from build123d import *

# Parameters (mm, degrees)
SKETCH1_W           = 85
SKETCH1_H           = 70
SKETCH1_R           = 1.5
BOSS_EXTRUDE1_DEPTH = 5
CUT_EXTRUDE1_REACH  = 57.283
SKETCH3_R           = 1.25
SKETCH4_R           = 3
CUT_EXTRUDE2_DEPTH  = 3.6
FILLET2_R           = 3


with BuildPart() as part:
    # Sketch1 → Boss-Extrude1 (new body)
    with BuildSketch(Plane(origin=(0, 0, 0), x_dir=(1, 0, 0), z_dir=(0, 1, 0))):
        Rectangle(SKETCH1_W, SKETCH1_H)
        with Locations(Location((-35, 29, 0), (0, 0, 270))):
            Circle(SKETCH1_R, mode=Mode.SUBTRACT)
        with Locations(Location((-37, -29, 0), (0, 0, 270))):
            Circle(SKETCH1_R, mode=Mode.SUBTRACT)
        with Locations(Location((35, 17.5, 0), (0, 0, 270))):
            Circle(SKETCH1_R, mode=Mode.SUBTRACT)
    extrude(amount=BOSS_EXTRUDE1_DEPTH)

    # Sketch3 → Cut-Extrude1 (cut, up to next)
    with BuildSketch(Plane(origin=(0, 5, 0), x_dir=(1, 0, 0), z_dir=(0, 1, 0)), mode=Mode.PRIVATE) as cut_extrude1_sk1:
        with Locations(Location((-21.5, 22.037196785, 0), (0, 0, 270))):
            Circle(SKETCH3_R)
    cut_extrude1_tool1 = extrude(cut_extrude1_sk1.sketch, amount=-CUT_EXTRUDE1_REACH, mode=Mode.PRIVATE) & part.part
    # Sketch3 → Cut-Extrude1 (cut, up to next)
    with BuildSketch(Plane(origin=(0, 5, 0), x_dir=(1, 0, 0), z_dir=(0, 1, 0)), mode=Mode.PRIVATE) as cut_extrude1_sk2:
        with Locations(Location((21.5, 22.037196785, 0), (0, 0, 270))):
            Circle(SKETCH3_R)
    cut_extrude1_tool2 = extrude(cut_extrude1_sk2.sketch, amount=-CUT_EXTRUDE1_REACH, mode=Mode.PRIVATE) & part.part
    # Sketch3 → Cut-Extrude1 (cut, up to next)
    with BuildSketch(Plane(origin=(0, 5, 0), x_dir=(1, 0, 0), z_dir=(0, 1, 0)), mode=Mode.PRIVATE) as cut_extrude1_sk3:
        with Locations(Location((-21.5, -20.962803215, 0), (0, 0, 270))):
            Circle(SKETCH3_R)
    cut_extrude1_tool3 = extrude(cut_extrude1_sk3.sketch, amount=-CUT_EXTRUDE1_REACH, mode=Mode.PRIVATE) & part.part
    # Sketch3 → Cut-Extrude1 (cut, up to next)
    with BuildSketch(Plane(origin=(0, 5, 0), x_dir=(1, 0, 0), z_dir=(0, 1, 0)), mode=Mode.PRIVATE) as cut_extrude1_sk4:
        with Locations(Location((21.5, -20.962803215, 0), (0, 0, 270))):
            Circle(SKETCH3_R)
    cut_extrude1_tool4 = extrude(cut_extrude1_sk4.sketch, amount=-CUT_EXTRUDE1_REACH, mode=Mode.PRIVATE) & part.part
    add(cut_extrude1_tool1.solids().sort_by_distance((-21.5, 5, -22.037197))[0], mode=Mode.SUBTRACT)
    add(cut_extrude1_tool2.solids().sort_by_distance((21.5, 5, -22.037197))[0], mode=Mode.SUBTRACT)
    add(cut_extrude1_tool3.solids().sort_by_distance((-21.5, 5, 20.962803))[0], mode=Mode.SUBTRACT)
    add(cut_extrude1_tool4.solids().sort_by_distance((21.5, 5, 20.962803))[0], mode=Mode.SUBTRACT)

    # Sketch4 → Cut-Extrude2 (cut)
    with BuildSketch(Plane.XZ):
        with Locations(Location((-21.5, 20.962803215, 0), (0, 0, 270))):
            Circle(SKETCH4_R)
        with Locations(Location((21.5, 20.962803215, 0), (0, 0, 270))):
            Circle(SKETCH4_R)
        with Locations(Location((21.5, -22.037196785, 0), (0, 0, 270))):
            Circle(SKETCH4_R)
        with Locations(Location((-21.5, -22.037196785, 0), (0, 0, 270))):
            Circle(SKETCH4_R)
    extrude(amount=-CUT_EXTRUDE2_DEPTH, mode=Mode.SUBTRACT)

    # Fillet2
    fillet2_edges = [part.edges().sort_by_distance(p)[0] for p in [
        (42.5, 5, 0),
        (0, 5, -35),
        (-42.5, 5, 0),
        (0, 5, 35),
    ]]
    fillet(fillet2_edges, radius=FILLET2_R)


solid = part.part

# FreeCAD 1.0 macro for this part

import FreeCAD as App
import Part
import Sketcher


def edges_at(feature, points):
    """Names of the edges that pass closest to the given points."""
    edges = feature.Shape.Edges
    near = lambda p: min(range(len(edges)), key=lambda i: edges[i].distToShape(Part.Vertex(*p))[0])
    return sorted({f"Edge{near(p) + 1}" for p in points})


def add_polygon(sketch, points):
    """Adds a closed chain of lines whose ends are joined by coincident constraints."""
    first, n = sketch.GeometryCount, len(points)
    for a, b in zip(points, points[1:] + points[:1]):
        sketch.addGeometry(Part.LineSegment(App.Vector(*a, 0), App.Vector(*b, 0)), False)
    for i in range(n):
        sketch.addConstraint(Sketcher.Constraint("Coincident", first + i, 2, first + (i + 1) % n, 1))

doc = App.newDocument("Part")
body = doc.addObject("PartDesign::Body", "Body")

# Sketch on XZ plane
sketch1 = body.newObject("Sketcher::SketchObject", "Sketch")
sketch1.AttachmentSupport = (doc.getObject("XZ_Plane"), [""])
sketch1.MapMode = "FlatFace"
add_polygon(sketch1, [(-42.5, -35), (-42.5, 35), (42.5, 35), (42.5, -35)])  # lines 0-3
sketch1.addGeometry(Part.Circle(App.Vector(-37, 29, 0), App.Vector(0, 0, 1), 1.5), False)  # 4
sketch1.addGeometry(Part.Circle(App.Vector(-35, -29, 0), App.Vector(0, 0, 1), 1.5), False)  # 5
sketch1.addGeometry(Part.Circle(App.Vector(35, -17.5, 0), App.Vector(0, 0, 1), 1.5), False)  # 6
sketch1.addConstraint(Sketcher.Constraint("Vertical", 0))
sketch1.addConstraint(Sketcher.Constraint("Horizontal", 1))
sketch1.addConstraint(Sketcher.Constraint("Vertical", 2))
sketch1.addConstraint(Sketcher.Constraint("Horizontal", 3))
sketch1.addConstraint(Sketcher.Constraint("Equal", 4, 5))
sketch1.addConstraint(Sketcher.Constraint("Equal", 5, 6))
sketch1.addConstraint(Sketcher.Constraint("Symmetric", 0, 2, 2, 2, -1, 1))
sketch1.addConstraint(Sketcher.Constraint("Diameter", 4, 3.0))
sketch1.addConstraint(Sketcher.Constraint("DistanceX", 1, 1, 1, 2, 85.0))
sketch1.addConstraint(Sketcher.Constraint("DistanceY", 0, 1, 0, 2, 70.0))
sketch1.addConstraint(Sketcher.Constraint("DistanceX", 4, 3, -1, 1, 37.0))
sketch1.addConstraint(Sketcher.Constraint("DistanceY", -1, 1, 4, 3, 29.0))
sketch1.addConstraint(Sketcher.Constraint("DistanceX", 5, 3, -1, 1, 35.0))
sketch1.addConstraint(Sketcher.Constraint("DistanceY", 5, 3, -1, 1, 29.0))
sketch1.addConstraint(Sketcher.Constraint("DistanceX", -1, 1, 6, 3, 35.0))
sketch1.addConstraint(Sketcher.Constraint("DistanceY", 6, 3, -1, 1, 17.5))
pad1 = body.newObject("PartDesign::Pad", "Pad")
pad1.Profile = sketch1
pad1.Length = 5
pad1.Reversed = True

# Sketch on XZ plane
sketch2 = body.newObject("Sketcher::SketchObject", "Sketch001")
sketch2.AttachmentSupport = (doc.getObject("XZ_Plane"), [""])
sketch2.MapMode = "FlatFace"
sketch2.AttachmentOffset = App.Placement(App.Vector(0, 0, -5), App.Rotation())
sketch2.addGeometry(Part.Circle(App.Vector(-21.5, -22, 0), App.Vector(0, 0, 1), 1.2), False)
sketch2.addConstraint(Sketcher.Constraint("Diameter", 0, 2.5))
sketch2.addConstraint(Sketcher.Constraint("DistanceX", 0, 3, -1, 1, 21.5))
sketch2.addConstraint(Sketcher.Constraint("DistanceY", 0, 3, -1, 1, 22.037197))
pocket1 = body.newObject("PartDesign::Pocket", "Pocket")
pocket1.Profile = sketch2
pocket1.Type = "UpToFirst"
pocket1.Reversed = True

# Sketch on XZ plane
sketch3 = body.newObject("Sketcher::SketchObject", "Sketch002")
sketch3.AttachmentSupport = (doc.getObject("XZ_Plane"), [""])
sketch3.MapMode = "FlatFace"
sketch3.AttachmentOffset = App.Placement(App.Vector(0, 0, -5), App.Rotation())
sketch3.addGeometry(Part.Circle(App.Vector(21.5, -22, 0), App.Vector(0, 0, 1), 1.2), False)
sketch3.addConstraint(Sketcher.Constraint("Diameter", 0, 2.5))
sketch3.addConstraint(Sketcher.Constraint("DistanceX", -1, 1, 0, 3, 21.5))
sketch3.addConstraint(Sketcher.Constraint("DistanceY", 0, 3, -1, 1, 22.037197))
pocket2 = body.newObject("PartDesign::Pocket", "Pocket001")
pocket2.Profile = sketch3
pocket2.Type = "UpToFirst"
pocket2.Reversed = True

# Sketch on XZ plane
sketch4 = body.newObject("Sketcher::SketchObject", "Sketch003")
sketch4.AttachmentSupport = (doc.getObject("XZ_Plane"), [""])
sketch4.MapMode = "FlatFace"
sketch4.AttachmentOffset = App.Placement(App.Vector(0, 0, -5), App.Rotation())
sketch4.addGeometry(Part.Circle(App.Vector(-21.5, 21, 0), App.Vector(0, 0, 1), 1.2), False)
sketch4.addConstraint(Sketcher.Constraint("Diameter", 0, 2.5))
sketch4.addConstraint(Sketcher.Constraint("DistanceX", 0, 3, -1, 1, 21.5))
sketch4.addConstraint(Sketcher.Constraint("DistanceY", -1, 1, 0, 3, 20.962803))
pocket3 = body.newObject("PartDesign::Pocket", "Pocket002")
pocket3.Profile = sketch4
pocket3.Type = "UpToFirst"
pocket3.Reversed = True

# Sketch on XZ plane
sketch5 = body.newObject("Sketcher::SketchObject", "Sketch004")
sketch5.AttachmentSupport = (doc.getObject("XZ_Plane"), [""])
sketch5.MapMode = "FlatFace"
sketch5.AttachmentOffset = App.Placement(App.Vector(0, 0, -5), App.Rotation())
sketch5.addGeometry(Part.Circle(App.Vector(21.5, 21, 0), App.Vector(0, 0, 1), 1.2), False)
sketch5.addConstraint(Sketcher.Constraint("Diameter", 0, 2.5))
sketch5.addConstraint(Sketcher.Constraint("DistanceX", -1, 1, 0, 3, 21.5))
sketch5.addConstraint(Sketcher.Constraint("DistanceY", -1, 1, 0, 3, 20.962803))
pocket4 = body.newObject("PartDesign::Pocket", "Pocket003")
pocket4.Profile = sketch5
pocket4.Type = "UpToFirst"
pocket4.Reversed = True

# Sketch on XZ plane
sketch6 = body.newObject("Sketcher::SketchObject", "Sketch005")
sketch6.AttachmentSupport = (doc.getObject("XZ_Plane"), [""])
sketch6.MapMode = "FlatFace"
sketch6.addGeometry(Part.Circle(App.Vector(-21.5, 21, 0), App.Vector(0, 0, 1), 3), False)
sketch6.addGeometry(Part.Circle(App.Vector(21.5, 21, 0), App.Vector(0, 0, 1), 3), False)
sketch6.addGeometry(Part.Circle(App.Vector(21.5, -22, 0), App.Vector(0, 0, 1), 3), False)
sketch6.addGeometry(Part.Circle(App.Vector(-21.5, -22, 0), App.Vector(0, 0, 1), 3), False)
sketch6.addConstraint(Sketcher.Constraint("Equal", 0, 1))
sketch6.addConstraint(Sketcher.Constraint("Equal", 1, 2))
sketch6.addConstraint(Sketcher.Constraint("Equal", 2, 3))
sketch6.addConstraint(Sketcher.Constraint("Symmetric", 0, 3, 1, 3, -2))
sketch6.addConstraint(Sketcher.Constraint("Symmetric", 2, 3, 3, 3, -2))
sketch6.addConstraint(Sketcher.Constraint("Vertical", 1, 3, 2, 3))
sketch6.addConstraint(Sketcher.Constraint("Diameter", 0, 6.0))
sketch6.addConstraint(Sketcher.Constraint("DistanceX", 0, 3, 1, 3, 43.0))
sketch6.addConstraint(Sketcher.Constraint("DistanceY", 2, 3, 1, 3, 43.0))
sketch6.addConstraint(Sketcher.Constraint("DistanceY", -1, 1, 0, 3, 20.962803))
pocket5 = body.newObject("PartDesign::Pocket", "Pocket004")
pocket5.Profile = sketch6
pocket5.Length = 3.6
doc.recompute()

fillet = body.newObject("PartDesign::Fillet", "Fillet")
fillet.Base = (pocket5, edges_at(pocket5, [
    (42.5, 5, 0),
    (0, 5, -35),
    (-42.5, 5, 0),
    (0, 5, 35),
]))
fillet.Radius = 3

doc.recompute()
